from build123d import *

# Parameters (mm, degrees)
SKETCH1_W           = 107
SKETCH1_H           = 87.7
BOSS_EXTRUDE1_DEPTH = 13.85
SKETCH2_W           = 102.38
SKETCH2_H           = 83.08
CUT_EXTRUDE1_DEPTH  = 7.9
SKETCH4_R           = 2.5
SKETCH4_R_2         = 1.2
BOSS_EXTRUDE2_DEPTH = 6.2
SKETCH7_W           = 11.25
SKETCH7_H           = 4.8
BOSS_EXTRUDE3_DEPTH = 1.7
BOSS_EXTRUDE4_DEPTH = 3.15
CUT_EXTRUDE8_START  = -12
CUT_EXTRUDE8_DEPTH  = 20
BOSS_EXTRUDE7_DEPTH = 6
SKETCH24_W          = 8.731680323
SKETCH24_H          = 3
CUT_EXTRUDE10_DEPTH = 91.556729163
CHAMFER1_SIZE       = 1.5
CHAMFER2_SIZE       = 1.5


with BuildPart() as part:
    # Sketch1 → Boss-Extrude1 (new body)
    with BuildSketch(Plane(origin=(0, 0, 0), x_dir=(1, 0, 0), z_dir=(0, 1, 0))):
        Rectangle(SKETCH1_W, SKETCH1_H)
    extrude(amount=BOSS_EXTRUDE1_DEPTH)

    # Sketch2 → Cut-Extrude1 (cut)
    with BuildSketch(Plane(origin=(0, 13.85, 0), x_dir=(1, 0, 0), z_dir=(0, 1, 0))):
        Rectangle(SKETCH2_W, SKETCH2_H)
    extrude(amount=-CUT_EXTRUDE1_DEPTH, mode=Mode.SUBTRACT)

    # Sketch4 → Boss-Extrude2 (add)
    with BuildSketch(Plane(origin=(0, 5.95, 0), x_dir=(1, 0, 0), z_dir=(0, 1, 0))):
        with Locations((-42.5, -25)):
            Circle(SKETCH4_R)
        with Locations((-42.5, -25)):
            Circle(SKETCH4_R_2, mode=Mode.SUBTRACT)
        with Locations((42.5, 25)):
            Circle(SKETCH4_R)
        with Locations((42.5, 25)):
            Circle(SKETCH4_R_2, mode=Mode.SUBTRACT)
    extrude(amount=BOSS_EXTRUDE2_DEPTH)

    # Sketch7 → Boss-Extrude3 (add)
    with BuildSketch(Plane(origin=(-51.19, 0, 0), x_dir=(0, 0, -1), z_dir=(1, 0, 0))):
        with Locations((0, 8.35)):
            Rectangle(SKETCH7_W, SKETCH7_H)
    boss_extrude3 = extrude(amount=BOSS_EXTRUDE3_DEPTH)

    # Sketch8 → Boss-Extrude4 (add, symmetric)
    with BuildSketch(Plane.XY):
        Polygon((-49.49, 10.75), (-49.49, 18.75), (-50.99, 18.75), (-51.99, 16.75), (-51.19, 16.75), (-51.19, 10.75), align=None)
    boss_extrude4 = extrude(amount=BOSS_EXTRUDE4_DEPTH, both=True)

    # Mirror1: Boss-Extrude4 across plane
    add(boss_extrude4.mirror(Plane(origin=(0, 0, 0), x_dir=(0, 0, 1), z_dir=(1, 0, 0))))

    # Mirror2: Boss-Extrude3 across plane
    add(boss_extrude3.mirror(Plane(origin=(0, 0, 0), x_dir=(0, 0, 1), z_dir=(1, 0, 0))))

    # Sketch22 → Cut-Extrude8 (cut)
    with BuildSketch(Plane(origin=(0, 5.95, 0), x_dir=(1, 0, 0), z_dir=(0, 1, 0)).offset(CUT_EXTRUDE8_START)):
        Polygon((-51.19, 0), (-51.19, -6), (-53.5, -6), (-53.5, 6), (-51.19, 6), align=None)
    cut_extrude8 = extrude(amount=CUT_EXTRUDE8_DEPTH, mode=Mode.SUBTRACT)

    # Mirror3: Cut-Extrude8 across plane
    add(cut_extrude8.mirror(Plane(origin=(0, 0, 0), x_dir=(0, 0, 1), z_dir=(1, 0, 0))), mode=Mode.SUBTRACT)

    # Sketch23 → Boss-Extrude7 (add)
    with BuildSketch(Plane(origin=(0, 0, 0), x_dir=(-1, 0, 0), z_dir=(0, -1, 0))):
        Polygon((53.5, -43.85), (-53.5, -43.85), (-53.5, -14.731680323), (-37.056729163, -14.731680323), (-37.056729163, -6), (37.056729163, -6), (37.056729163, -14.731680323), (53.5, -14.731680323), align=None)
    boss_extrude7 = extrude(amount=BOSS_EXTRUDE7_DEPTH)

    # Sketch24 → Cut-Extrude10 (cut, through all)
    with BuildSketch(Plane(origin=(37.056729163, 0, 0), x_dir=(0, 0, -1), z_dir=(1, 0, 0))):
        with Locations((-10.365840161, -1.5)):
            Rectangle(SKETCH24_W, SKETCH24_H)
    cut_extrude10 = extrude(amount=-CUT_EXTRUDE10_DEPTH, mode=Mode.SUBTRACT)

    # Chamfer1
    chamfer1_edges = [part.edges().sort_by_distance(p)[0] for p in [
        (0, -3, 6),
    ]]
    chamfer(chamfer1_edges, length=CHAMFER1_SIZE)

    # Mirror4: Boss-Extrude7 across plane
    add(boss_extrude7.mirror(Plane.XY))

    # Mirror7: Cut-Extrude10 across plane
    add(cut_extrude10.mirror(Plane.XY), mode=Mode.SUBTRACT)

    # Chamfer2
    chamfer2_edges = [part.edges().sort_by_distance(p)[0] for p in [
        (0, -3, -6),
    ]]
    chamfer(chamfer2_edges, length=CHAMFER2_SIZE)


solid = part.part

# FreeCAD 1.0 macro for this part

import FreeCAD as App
import Part
import Sketcher


def edges_at(feature, points):
    """Names of the edges that pass closest to the given points."""
    edges = feature.Shape.Edges
    near = lambda p: min(range(len(edges)), key=lambda i: edges[i].distToShape(Part.Vertex(*p))[0])
    return sorted({f"Edge{near(p) + 1}" for p in points})


def add_polygon(sketch, points):
    """Adds a closed chain of lines whose ends are joined by coincident constraints."""
    first, n = sketch.GeometryCount, len(points)
    for a, b in zip(points, points[1:] + points[:1]):
        sketch.addGeometry(Part.LineSegment(App.Vector(*a, 0), App.Vector(*b, 0)), False)
    for i in range(n):
        sketch.addConstraint(Sketcher.Constraint("Coincident", first + i, 2, first + (i + 1) % n, 1))

doc = App.newDocument("Part")
params = doc.addObject("Spreadsheet::Sheet", "Params")
for row, (alias, value) in enumerate([
    ("sketch1_width", "107 mm"),
    ("sketch1_height", "87.7 mm"),
    ("pad1_length", "13.85 mm"),
    ("sketch2_width", "102.38 mm"),
    ("sketch2_height", "83.08 mm"),
    ("pocket1_length", "7.9 mm"),
    ("sketch3_diameter", "5 mm"),
    ("sketch3_diameter2", "2.4 mm"),
    ("pad2_length", "6.2 mm"),
    ("sketch4_width", "4.8 mm"),
    ("sketch4_height", "11.25 mm"),
    ("pad3_length", "1.7 mm"),
    ("sketch5_height", "8 mm"),
    ("sketch5_height2", "6 mm"),
    ("sketch5_width", "1.5 mm"),
    ("sketch5_width2", "0.8 mm"),
    ("sketch5_width3", "1.7 mm"),
    ("pad4_length", "6.3 mm"),
    ("sketch6_height", "12 mm"),
    ("sketch6_width", "2.31 mm"),
    ("pocket2_length", "20 mm"),
    ("sketch7_width", "107 mm"),
    ("pad5_length", "6 mm"),
    ("sketch8_width", "3 mm"),
    ("chamfer_size", "1.5 mm"),
    ("chamfer2_size", "1.5 mm"),
], start=1):
    params.set(f"A{row}", alias)
    params.set(f"B{row}", "=" + value)
    params.setAlias(f"B{row}", alias)

body = doc.addObject("PartDesign::Body", "Body")

# Sketch on XZ plane
sketch1 = body.newObject("Sketcher::SketchObject", "Sketch")
sketch1.AttachmentSupport = (doc.getObject("XZ_Plane"), [""])
sketch1.MapMode = "FlatFace"
add_polygon(sketch1, [(-53.5, -43.85), (-53.5, 43.85), (53.5, 43.85), (53.5, -43.85)])  # lines 0-3
sketch1.addConstraint(Sketcher.Constraint("Vertical", 0))
sketch1.addConstraint(Sketcher.Constraint("Horizontal", 1))
sketch1.addConstraint(Sketcher.Constraint("Vertical", 2))
sketch1.addConstraint(Sketcher.Constraint("Horizontal", 3))
sketch1.addConstraint(Sketcher.Constraint("Symmetric", 0, 2, 2, 2, -1, 1))
sketch1.addConstraint(Sketcher.Constraint("DistanceX", 1, 1, 1, 2, 107.0))
sketch1.addConstraint(Sketcher.Constraint("DistanceY", 0, 1, 0, 2, 87.7))
sketch1.setExpression("Constraints[9]", "Params.sketch1_width")
sketch1.setExpression("Constraints[10]", "Params.sketch1_height")
pad1 = body.newObject("PartDesign::Pad", "Pad")
pad1.Profile = sketch1
pad1.setExpression("Length", "Params.pad1_length")
pad1.Reversed = True

# Sketch on XZ plane
sketch2 = body.newObject("Sketcher::SketchObject", "Sketch001")
sketch2.AttachmentSupport = (doc.getObject("XZ_Plane"), [""])
sketch2.MapMode = "FlatFace"
sketch2.AttachmentOffset = App.Placement(App.Vector(0, 0, -13.85), App.Rotation())
add_polygon(sketch2, [(-51.19, -41.54), (-51.19, 41.54), (51.19, 41.54), (51.19, -41.54)])  # lines 0-3
sketch2.addConstraint(Sketcher.Constraint("Vertical", 0))
sketch2.addConstraint(Sketcher.Constraint("Horizontal", 1))
sketch2.addConstraint(Sketcher.Constraint("Vertical", 2))
sketch2.addConstraint(Sketcher.Constraint("Horizontal", 3))
sketch2.addConstraint(Sketcher.Constraint("Symmetric", 0, 2, 2, 2, -1, 1))
sketch2.addConstraint(Sketcher.Constraint("DistanceX", 1, 1, 1, 2, 102.38))
sketch2.addConstraint(Sketcher.Constraint("DistanceY", 0, 1, 0, 2, 83.08))
sketch2.setExpression("Constraints[9]", "Params.sketch2_width")
sketch2.setExpression("Constraints[10]", "Params.sketch2_height")
pocket1 = body.newObject("PartDesign::Pocket", "Pocket")
pocket1.Profile = sketch2
pocket1.setExpression("Length", "Params.pocket1_length")
pocket1.Reversed = True

# Sketch on XZ plane
sketch3 = body.newObject("Sketcher::SketchObject", "Sketch002")
sketch3.AttachmentSupport = (doc.getObject("XZ_Plane"), [""])
sketch3.MapMode = "FlatFace"
sketch3.AttachmentOffset = App.Placement(App.Vector(0, 0, -5.95), App.Rotation())
sketch3.addGeometry(Part.Circle(App.Vector(-42.5, 25, 0), App.Vector(0, 0, 1), 2.5), False)
sketch3.addGeometry(Part.Circle(App.Vector(-42.5, 25, 0), App.Vector(0, 0, 1), 1.2), False)
sketch3.addGeometry(Part.Circle(App.Vector(42.5, -25, 0), App.Vector(0, 0, 1), 2.5), False)
sketch3.addGeometry(Part.Circle(App.Vector(42.5, -25, 0), App.Vector(0, 0, 1), 1.2), False)
sketch3.addConstraint(Sketcher.Constraint("Coincident", 1, 3, 0, 3))
sketch3.addConstraint(Sketcher.Constraint("Coincident", 3, 3, 2, 3))
sketch3.addConstraint(Sketcher.Constraint("Equal", 0, 2))
sketch3.addConstraint(Sketcher.Constraint("Equal", 1, 3))
sketch3.addConstraint(Sketcher.Constraint("Symmetric", 0, 3, 2, 3, -1, 1))
sketch3.addConstraint(Sketcher.Constraint("Diameter", 0, 5.0))
sketch3.addConstraint(Sketcher.Constraint("Diameter", 1, 2.4))
sketch3.addConstraint(Sketcher.Constraint("DistanceY", -1, 1, 0, 3, 25.0))
sketch3.addConstraint(Sketcher.Constraint("DistanceX", 0, 3, 2, 3, 85.0))
sketch3.setExpression("Constraints[5]", "Params.sketch3_diameter")
sketch3.setExpression("Constraints[6]", "Params.sketch3_diameter2")
pad2 = body.newObject("PartDesign::Pad", "Pad001")
pad2.Profile = sketch3
pad2.setExpression("Length", "Params.pad2_length")
pad2.Reversed = True

# Sketch on YZ plane
sketch4 = body.newObject("Sketcher::SketchObject", "Sketch003")
sketch4.AttachmentSupport = (doc.getObject("YZ_Plane"), [""])
sketch4.MapMode = "FlatFace"
sketch4.AttachmentOffset = App.Placement(App.Vector(0, 0, -51.19), App.Rotation())
add_polygon(sketch4, [(10.75, 5.625), (5.95, 5.625), (5.95, -5.625), (10.75, -5.625)])  # lines 0-3
sketch4.addConstraint(Sketcher.Constraint("Horizontal", 0))
sketch4.addConstraint(Sketcher.Constraint("Vertical", 1))
sketch4.addConstraint(Sketcher.Constraint("Horizontal", 2))
sketch4.addConstraint(Sketcher.Constraint("Vertical", 3))
sketch4.addConstraint(Sketcher.Constraint("DistanceX", 0, 2, 0, 1, 4.8))
sketch4.addConstraint(Sketcher.Constraint("DistanceY", 1, 2, 1, 1, 11.25))
sketch4.addConstraint(Sketcher.Constraint("DistanceX", -1, 1, 0, 2, 5.95))
sketch4.addConstraint(Sketcher.Constraint("DistanceY", -1, 1, 0, 2, 5.625))
sketch4.setExpression("Constraints[8]", "Params.sketch4_width")
sketch4.setExpression("Constraints[9]", "Params.sketch4_height")
pad3 = body.newObject("PartDesign::Pad", "Pad002")
pad3.Profile = sketch4
pad3.setExpression("Length", "Params.pad3_length")

# Sketch on XY plane
sketch5 = body.newObject("Sketcher::SketchObject", "Sketch004")
sketch5.AttachmentSupport = (doc.getObject("XY_Plane"), [""])
sketch5.MapMode = "FlatFace"
add_polygon(sketch5, [(-49.49, 10.75), (-49.49, 18.75), (-50.99, 18.75), (-51.99, 16.75), (-51.19, 16.75), (-51.19, 10.75)])  # lines 0-5
sketch5.addConstraint(Sketcher.Constraint("Vertical", 0))
sketch5.addConstraint(Sketcher.Constraint("Horizontal", 1))
sketch5.addConstraint(Sketcher.Constraint("Horizontal", 3))
sketch5.addConstraint(Sketcher.Constraint("Vertical", 4))
sketch5.addConstraint(Sketcher.Constraint("Horizontal", 5))
sketch5.addConstraint(Sketcher.Constraint("DistanceY", 0, 1, 0, 2, 8.0))
sketch5.addConstraint(Sketcher.Constraint("DistanceY", 4, 2, 4, 1, 6.0))
sketch5.addConstraint(Sketcher.Constraint("DistanceX", 1, 2, 1, 1, 1.5))
sketch5.addConstraint(Sketcher.Constraint("DistanceX", 3, 1, 3, 2, 0.8))
sketch5.addConstraint(Sketcher.Constraint("DistanceX", 5, 1, 5, 2, 1.7))
sketch5.addConstraint(Sketcher.Constraint("DistanceX", 0, 2, -1, 1, 49.49))
sketch5.addConstraint(Sketcher.Constraint("DistanceY", -1, 1, 0, 2, 18.75))
sketch5.setExpression("Constraints[11]", "Params.sketch5_height")
sketch5.setExpression("Constraints[12]", "Params.sketch5_height2")
sketch5.setExpression("Constraints[13]", "Params.sketch5_width")
sketch5.setExpression("Constraints[14]", "Params.sketch5_width2")
sketch5.setExpression("Constraints[15]", "Params.sketch5_width3")
pad4 = body.newObject("PartDesign::Pad", "Pad003")
pad4.Profile = sketch5
pad4.setExpression("Length", "Params.pad4_length")
pad4.Midplane = True
doc.recompute()

mirrored = body.newObject("PartDesign::Mirrored", "Mirrored")
mirrored.Originals = [pad4]
mirrored.MirrorPlane = (doc.getObject("YZ_Plane"), [""])
body.Tip = mirrored
doc.recompute()

mirrored2 = body.newObject("PartDesign::Mirrored", "Mirrored001")
mirrored2.Originals = [pad3]
mirrored2.MirrorPlane = (doc.getObject("YZ_Plane"), [""])
body.Tip = mirrored2

# Sketch on XZ plane
sketch6 = body.newObject("Sketcher::SketchObject", "Sketch005")
sketch6.AttachmentSupport = (doc.getObject("XZ_Plane"), [""])
sketch6.MapMode = "FlatFace"
sketch6.AttachmentOffset = App.Placement(App.Vector(0, 0, 6.05), App.Rotation())
add_polygon(sketch6, [(-51.19, 6), (-51.19, -6), (-53.5, -6), (-53.5, 6)])  # lines 0-3
sketch6.addConstraint(Sketcher.Constraint("Vertical", 0))
sketch6.addConstraint(Sketcher.Constraint("Horizontal", 1))
sketch6.addConstraint(Sketcher.Constraint("Vertical", 2))
sketch6.addConstraint(Sketcher.Constraint("Horizontal", 3))
sketch6.addConstraint(Sketcher.Constraint("DistanceY", 0, 2, 0, 1, 12.0))
sketch6.addConstraint(Sketcher.Constraint("DistanceY", 0, 2, -1, 1, 6.0))
sketch6.addConstraint(Sketcher.Constraint("DistanceX", 1, 2, 1, 1, 2.31))
sketch6.addConstraint(Sketcher.Constraint("DistanceX", 1, 2, -1, 1, 53.5))
sketch6.setExpression("Constraints[8]", "Params.sketch6_height")
sketch6.setExpression("Constraints[10]", "Params.sketch6_width")
pocket2 = body.newObject("PartDesign::Pocket", "Pocket001")
pocket2.Profile = sketch6
pocket2.setExpression("Length", "Params.pocket2_length")
doc.recompute()

mirrored3 = body.newObject("PartDesign::Mirrored", "Mirrored002")
mirrored3.Originals = [pocket2]
mirrored3.MirrorPlane = (doc.getObject("YZ_Plane"), [""])
body.Tip = mirrored3

# Sketch on XZ plane
sketch7 = body.newObject("Sketcher::SketchObject", "Sketch006")
sketch7.AttachmentSupport = (doc.getObject("XZ_Plane"), [""])
sketch7.MapMode = "FlatFace"
add_polygon(sketch7, [(53.5, 43.85), (-53.5, 43.85), (-53.5, 14.73168), (-37.056729, 14.73168), (-37.056729, 6), (37.056729, 6), (37.056729, 14.73168), (53.5, 14.73168)])  # lines 0-7
sketch7.addConstraint(Sketcher.Constraint("Horizontal", 0))
sketch7.addConstraint(Sketcher.Constraint("Vertical", 1))
sketch7.addConstraint(Sketcher.Constraint("Horizontal", 2))
sketch7.addConstraint(Sketcher.Constraint("Vertical", 3))
sketch7.addConstraint(Sketcher.Constraint("Horizontal", 4))
sketch7.addConstraint(Sketcher.Constraint("Vertical", 5))
sketch7.addConstraint(Sketcher.Constraint("Horizontal", 6))
sketch7.addConstraint(Sketcher.Constraint("Vertical", 7))
sketch7.addConstraint(Sketcher.Constraint("Symmetric", 2, 2, 5, 2, -2))
sketch7.addConstraint(Sketcher.Constraint("Equal", 2, 6))
sketch7.addConstraint(Sketcher.Constraint("DistanceX", 0, 2, 0, 1, 107.0))
sketch7.addConstraint(Sketcher.Constraint("DistanceY", -1, 1, 3, 2, 6.0))
sketch7.addConstraint(Sketcher.Constraint("DistanceY", -1, 1, 0, 2, 43.85))
sketch7.addConstraint(Sketcher.Constraint("DistanceX", 2, 1, 2, 2, 16.443271))
sketch7.addConstraint(Sketcher.Constraint("DistanceY", 1, 2, 1, 1, 29.11832))
sketch7.setExpression("Constraints[18]", "Params.sketch7_width")
pad5 = body.newObject("PartDesign::Pad", "Pad004")
pad5.Profile = sketch7
pad5.setExpression("Length", "Params.pad5_length")

# Sketch on YZ plane
sketch8 = body.newObject("Sketcher::SketchObject", "Sketch007")
sketch8.AttachmentSupport = (doc.getObject("YZ_Plane"), [""])
sketch8.MapMode = "FlatFace"
sketch8.AttachmentOffset = App.Placement(App.Vector(0, 0, 37.056729), App.Rotation())
add_polygon(sketch8, [(0, 14.73168), (-3, 14.73168), (-3, 6), (0, 6)])  # lines 0-3
sketch8.addConstraint(Sketcher.Constraint("Horizontal", 0))
sketch8.addConstraint(Sketcher.Constraint("Vertical", 1))
sketch8.addConstraint(Sketcher.Constraint("Horizontal", 2))
sketch8.addConstraint(Sketcher.Constraint("Vertical", 3))
sketch8.addConstraint(Sketcher.Constraint("PointOnObject", 2, 2, -2))
sketch8.addConstraint(Sketcher.Constraint("DistanceX", 0, 2, 0, 1, 3.0))
sketch8.addConstraint(Sketcher.Constraint("DistanceY", -1, 1, 1, 2, 6.0))
sketch8.addConstraint(Sketcher.Constraint("DistanceY", 1, 2, 1, 1, 8.73168))
sketch8.setExpression("Constraints[9]", "Params.sketch8_width")
pocket3 = body.newObject("PartDesign::Pocket", "Pocket002")
pocket3.Profile = sketch8
pocket3.Type = "ThroughAll"
doc.recompute()

chamfer = body.newObject("PartDesign::Chamfer", "Chamfer")
chamfer.Base = (pocket3, edges_at(pocket3, [(0, -3, 6)]))
chamfer.setExpression("Size", "Params.chamfer_size")
doc.recompute()

mirrored4 = body.newObject("PartDesign::Mirrored", "Mirrored003")
mirrored4.Originals = [pad5]
mirrored4.MirrorPlane = (doc.getObject("XY_Plane"), [""])
body.Tip = mirrored4
doc.recompute()

mirrored5 = body.newObject("PartDesign::Mirrored", "Mirrored004")
mirrored5.Originals = [pocket3]
mirrored5.MirrorPlane = (doc.getObject("XY_Plane"), [""])
body.Tip = mirrored5
doc.recompute()

chamfer2 = body.newObject("PartDesign::Chamfer", "Chamfer001")
chamfer2.Base = (mirrored5, edges_at(mirrored5, [(0, -3, -6)]))
chamfer2.setExpression("Size", "Params.chamfer2_size")

doc.recompute()
